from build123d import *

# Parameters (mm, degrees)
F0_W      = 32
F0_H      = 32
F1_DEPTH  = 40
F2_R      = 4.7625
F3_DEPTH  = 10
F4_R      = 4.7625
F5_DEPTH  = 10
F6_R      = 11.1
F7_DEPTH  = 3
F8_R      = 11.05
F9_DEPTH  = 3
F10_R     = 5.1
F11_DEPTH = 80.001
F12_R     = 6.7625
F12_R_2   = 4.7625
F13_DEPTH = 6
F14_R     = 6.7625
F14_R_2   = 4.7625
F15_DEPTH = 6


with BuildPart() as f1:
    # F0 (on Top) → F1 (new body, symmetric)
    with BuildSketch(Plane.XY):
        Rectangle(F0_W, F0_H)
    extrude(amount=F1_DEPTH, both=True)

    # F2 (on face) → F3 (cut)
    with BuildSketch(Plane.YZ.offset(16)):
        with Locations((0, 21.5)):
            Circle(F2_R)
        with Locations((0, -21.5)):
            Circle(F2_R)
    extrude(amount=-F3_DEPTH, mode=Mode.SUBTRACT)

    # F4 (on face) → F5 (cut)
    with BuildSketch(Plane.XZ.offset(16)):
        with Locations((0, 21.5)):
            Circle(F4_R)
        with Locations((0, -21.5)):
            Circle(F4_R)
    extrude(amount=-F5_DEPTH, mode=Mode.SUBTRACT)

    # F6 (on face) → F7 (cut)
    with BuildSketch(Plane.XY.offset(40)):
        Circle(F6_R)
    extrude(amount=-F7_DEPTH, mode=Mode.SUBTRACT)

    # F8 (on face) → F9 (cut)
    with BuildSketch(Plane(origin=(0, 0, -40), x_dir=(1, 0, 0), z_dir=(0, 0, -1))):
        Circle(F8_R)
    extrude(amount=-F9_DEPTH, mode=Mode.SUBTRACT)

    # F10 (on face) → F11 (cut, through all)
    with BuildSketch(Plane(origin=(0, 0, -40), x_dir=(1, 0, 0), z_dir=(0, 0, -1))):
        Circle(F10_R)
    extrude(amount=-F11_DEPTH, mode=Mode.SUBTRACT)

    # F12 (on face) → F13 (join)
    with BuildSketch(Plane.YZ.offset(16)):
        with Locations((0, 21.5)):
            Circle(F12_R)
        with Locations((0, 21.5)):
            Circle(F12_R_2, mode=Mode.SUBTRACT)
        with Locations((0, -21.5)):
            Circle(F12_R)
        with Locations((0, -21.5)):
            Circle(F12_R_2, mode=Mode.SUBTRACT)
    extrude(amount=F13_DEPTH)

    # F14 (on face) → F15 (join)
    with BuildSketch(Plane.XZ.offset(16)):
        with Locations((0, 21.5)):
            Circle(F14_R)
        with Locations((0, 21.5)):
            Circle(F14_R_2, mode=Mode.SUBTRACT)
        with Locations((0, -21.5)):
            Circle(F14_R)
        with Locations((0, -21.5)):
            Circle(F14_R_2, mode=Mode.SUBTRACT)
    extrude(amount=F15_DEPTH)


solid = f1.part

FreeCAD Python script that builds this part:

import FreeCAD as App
import Part
import Sketcher
from FreeCAD import Vector
Q = App.Units.Quantity

doc = App.newDocument("Part")
body = doc.addObject("PartDesign::Body", "Body")

sketch1 = body.newObject("Sketcher::SketchObject", "Sketch")
sketch1.AttachmentSupport = (doc.getObject("XY_Plane"), [""])
sketch1.MapMode = "FlatFace"
sketch1.addGeometry(Part.LineSegment(Vector(-16, 16, 0), Vector(-16, -16, 0)), False)
sketch1.addGeometry(Part.LineSegment(Vector(-16, -16, 0), Vector(16, -16, 0)), False)
sketch1.addGeometry(Part.LineSegment(Vector(16, -16, 0), Vector(16, 16, 0)), False)
sketch1.addGeometry(Part.LineSegment(Vector(16, 16, 0), Vector(-16, 16, 0)), False)
sketch1.addConstraint(Sketcher.Constraint("Coincident", 0, 2, 1, 1))
sketch1.addConstraint(Sketcher.Constraint("Coincident", 1, 2, 2, 1))
sketch1.addConstraint(Sketcher.Constraint("Coincident", 2, 2, 3, 1))
sketch1.addConstraint(Sketcher.Constraint("Coincident", 3, 2, 0, 1))
sketch1.addConstraint(Sketcher.Constraint("Vertical", 0))
sketch1.addConstraint(Sketcher.Constraint("Horizontal", 1))
sketch1.addConstraint(Sketcher.Constraint("Vertical", 2))
sketch1.addConstraint(Sketcher.Constraint("Horizontal", 3))
sketch1.addConstraint(Sketcher.Constraint("Symmetric", 0, 2, 2, 2, -1, 1))
sketch1.addConstraint(Sketcher.Constraint("Equal", 3, 0))
sketch1.addConstraint(Sketcher.Constraint("DistanceX", 1, 1, 1, 2, Q("32 mm")))
pad1 = body.newObject("PartDesign::Pad", "Pad")
pad1.Profile = sketch1
pad1.Length = 80
pad1.Midplane = True

sketch2 = body.newObject("Sketcher::SketchObject", "Sketch001")
sketch2.AttachmentSupport = (doc.getObject("YZ_Plane"), [""])
sketch2.MapMode = "FlatFace"
sketch2.AttachmentOffset = App.Placement(Vector(0, 0, 16), App.Rotation())
sketch2.addGeometry(Part.Circle(Vector(0, 21.5, 0), Vector(0, 0, 1), 4.8), False)
sketch2.addGeometry(Part.Circle(Vector(0, -21.5, 0), Vector(0, 0, 1), 4.8), False)
sketch2.addConstraint(Sketcher.Constraint("Equal", 0, 1))
sketch2.addConstraint(Sketcher.Constraint("Symmetric", 0, 3, 1, 3, -1, 1))
sketch2.addConstraint(Sketcher.Constraint("PointOnObject", 0, 3, -2))
sketch2.addConstraint(Sketcher.Constraint("Diameter", 0, Q("9.525 mm")))
sketch2.addConstraint(Sketcher.Constraint("DistanceY", 1, 3, 0, 3, Q("43 mm")))
pocket1 = body.newObject("PartDesign::Pocket", "Pocket")
pocket1.Profile = sketch2
pocket1.Length = 10

sketch3 = body.newObject("Sketcher::SketchObject", "Sketch002")
sketch3.AttachmentSupport = (doc.getObject("XZ_Plane"), [""])
sketch3.MapMode = "FlatFace"
sketch3.AttachmentOffset = App.Placement(Vector(0, 0, 16), App.Rotation())
sketch3.addGeometry(Part.Circle(Vector(0, 21.5, 0), Vector(0, 0, 1), 4.8), False)
sketch3.addGeometry(Part.Circle(Vector(0, -21.5, 0), Vector(0, 0, 1), 4.8), False)
sketch3.addConstraint(Sketcher.Constraint("Equal", 0, 1))
sketch3.addConstraint(Sketcher.Constraint("Symmetric", 0, 3, 1, 3, -1, 1))
sketch3.addConstraint(Sketcher.Constraint("PointOnObject", 0, 3, -2))
sketch3.addConstraint(Sketcher.Constraint("Diameter", 0, Q("9.525 mm")))
sketch3.addConstraint(Sketcher.Constraint("DistanceY", 1, 3, 0, 3, Q("43 mm")))
pocket2 = body.newObject("PartDesign::Pocket", "Pocket001")
pocket2.Profile = sketch3
pocket2.Length = 10

sketch4 = body.newObject("Sketcher::SketchObject", "Sketch003")
sketch4.AttachmentSupport = (doc.getObject("XY_Plane"), [""])
sketch4.MapMode = "FlatFace"
sketch4.AttachmentOffset = App.Placement(Vector(0, 0, 40), App.Rotation())
sketch4.addGeometry(Part.Circle(Vector(0, 0, 0), Vector(0, 0, 1), 11), False)
sketch4.addConstraint(Sketcher.Constraint("Coincident", 0, 3, -1, 1))
sketch4.addConstraint(Sketcher.Constraint("Diameter", 0, Q("22.2 mm")))
pocket3 = body.newObject("PartDesign::Pocket", "Pocket002")
pocket3.Profile = sketch4
pocket3.Length = 3

sketch5 = body.newObject("Sketcher::SketchObject", "Sketch004")
sketch5.AttachmentSupport = (doc.getObject("XY_Plane"), [""])
sketch5.MapMode = "FlatFace"
sketch5.AttachmentOffset = App.Placement(Vector(0, 0, -40), App.Rotation())
sketch5.addGeometry(Part.Circle(Vector(0, 0, 0), Vector(0, 0, 1), 11), False)
sketch5.addConstraint(Sketcher.Constraint("Coincident", 0, 3, -1, 1))
sketch5.addConstraint(Sketcher.Constraint("Diameter", 0, Q("22.1 mm")))
pocket4 = body.newObject("PartDesign::Pocket", "Pocket003")
pocket4.Profile = sketch5
pocket4.Length = 3
pocket4.Reversed = True

sketch6 = body.newObject("Sketcher::SketchObject", "Sketch005")
sketch6.AttachmentSupport = (doc.getObject("XY_Plane"), [""])
sketch6.MapMode = "FlatFace"
sketch6.AttachmentOffset = App.Placement(Vector(0, 0, -40), App.Rotation())
sketch6.addGeometry(Part.Circle(Vector(0, 0, 0), Vector(0, 0, 1), 5), False)
sketch6.addConstraint(Sketcher.Constraint("Coincident", 0, 3, -1, 1))
sketch6.addConstraint(Sketcher.Constraint("Diameter", 0, Q("10.2 mm")))
pocket5 = body.newObject("PartDesign::Pocket", "Pocket004")
pocket5.Profile = sketch6
pocket5.Type = "ThroughAll"
pocket5.Reversed = True

sketch7 = body.newObject("Sketcher::SketchObject", "Sketch006")
sketch7.AttachmentSupport = (doc.getObject("YZ_Plane"), [""])
sketch7.MapMode = "FlatFace"
sketch7.AttachmentOffset = App.Placement(Vector(0, 0, 16), App.Rotation())
sketch7.addGeometry(Part.Circle(Vector(0, 21.5, 0), Vector(0, 0, 1), 6.8), False)
sketch7.addGeometry(Part.Circle(Vector(0, 21.5, 0), Vector(0, 0, 1), 4.8), False)
sketch7.addGeometry(Part.Circle(Vector(0, -21.5, 0), Vector(0, 0, 1), 6.8), False)
sketch7.addGeometry(Part.Circle(Vector(0, -21.5, 0), Vector(0, 0, 1), 4.8), False)
sketch7.addConstraint(Sketcher.Constraint("Coincident", 1, 3, 0, 3))
sketch7.addConstraint(Sketcher.Constraint("Coincident", 3, 3, 2, 3))
sketch7.addConstraint(Sketcher.Constraint("Equal", 0, 2))
sketch7.addConstraint(Sketcher.Constraint("Equal", 1, 3))
sketch7.addConstraint(Sketcher.Constraint("Symmetric", 0, 3, 2, 3, -1, 1))
sketch7.addConstraint(Sketcher.Constraint("PointOnObject", 0, 3, -2))
sketch7.addConstraint(Sketcher.Constraint("Diameter", 0, Q("13.525 mm")))
sketch7.addConstraint(Sketcher.Constraint("Diameter", 1, Q("9.525 mm")))
sketch7.addConstraint(Sketcher.Constraint("DistanceY", 2, 3, 0, 3, Q("43 mm")))
pad2 = body.newObject("PartDesign::Pad", "Pad001")
pad2.Profile = sketch7
pad2.Length = 6

sketch8 = body.newObject("Sketcher::SketchObject", "Sketch007")
sketch8.AttachmentSupport = (doc.getObject("XZ_Plane"), [""])
sketch8.MapMode = "FlatFace"
sketch8.AttachmentOffset = App.Placement(Vector(0, 0, 16), App.Rotation())
sketch8.addGeometry(Part.Circle(Vector(0, 21.5, 0), Vector(0, 0, 1), 6.8), False)
sketch8.addGeometry(Part.Circle(Vector(0, 21.5, 0), Vector(0, 0, 1), 4.8), False)
sketch8.addGeometry(Part.Circle(Vector(0, -21.5, 0), Vector(0, 0, 1), 6.8), False)
sketch8.addGeometry(Part.Circle(Vector(0, -21.5, 0), Vector(0, 0, 1), 4.8), False)
sketch8.addConstraint(Sketcher.Constraint("Coincident", 1, 3, 0, 3))
sketch8.addConstraint(Sketcher.Constraint("Coincident", 3, 3, 2, 3))
sketch8.addConstraint(Sketcher.Constraint("Equal", 0, 2))
sketch8.addConstraint(Sketcher.Constraint("Equal", 1, 3))
sketch8.addConstraint(Sketcher.Constraint("Symmetric", 0, 3, 2, 3, -1, 1))
sketch8.addConstraint(Sketcher.Constraint("PointOnObject", 0, 3, -2))
sketch8.addConstraint(Sketcher.Constraint("Diameter", 0, Q("13.525 mm")))
sketch8.addConstraint(Sketcher.Constraint("Diameter", 1, Q("9.525 mm")))
sketch8.addConstraint(Sketcher.Constraint("DistanceY", 2, 3, 0, 3, Q("43 mm")))
pad3 = body.newObject("PartDesign::Pad", "Pad002")
pad3.Profile = sketch8
pad3.Length = 6

doc.recompute()
